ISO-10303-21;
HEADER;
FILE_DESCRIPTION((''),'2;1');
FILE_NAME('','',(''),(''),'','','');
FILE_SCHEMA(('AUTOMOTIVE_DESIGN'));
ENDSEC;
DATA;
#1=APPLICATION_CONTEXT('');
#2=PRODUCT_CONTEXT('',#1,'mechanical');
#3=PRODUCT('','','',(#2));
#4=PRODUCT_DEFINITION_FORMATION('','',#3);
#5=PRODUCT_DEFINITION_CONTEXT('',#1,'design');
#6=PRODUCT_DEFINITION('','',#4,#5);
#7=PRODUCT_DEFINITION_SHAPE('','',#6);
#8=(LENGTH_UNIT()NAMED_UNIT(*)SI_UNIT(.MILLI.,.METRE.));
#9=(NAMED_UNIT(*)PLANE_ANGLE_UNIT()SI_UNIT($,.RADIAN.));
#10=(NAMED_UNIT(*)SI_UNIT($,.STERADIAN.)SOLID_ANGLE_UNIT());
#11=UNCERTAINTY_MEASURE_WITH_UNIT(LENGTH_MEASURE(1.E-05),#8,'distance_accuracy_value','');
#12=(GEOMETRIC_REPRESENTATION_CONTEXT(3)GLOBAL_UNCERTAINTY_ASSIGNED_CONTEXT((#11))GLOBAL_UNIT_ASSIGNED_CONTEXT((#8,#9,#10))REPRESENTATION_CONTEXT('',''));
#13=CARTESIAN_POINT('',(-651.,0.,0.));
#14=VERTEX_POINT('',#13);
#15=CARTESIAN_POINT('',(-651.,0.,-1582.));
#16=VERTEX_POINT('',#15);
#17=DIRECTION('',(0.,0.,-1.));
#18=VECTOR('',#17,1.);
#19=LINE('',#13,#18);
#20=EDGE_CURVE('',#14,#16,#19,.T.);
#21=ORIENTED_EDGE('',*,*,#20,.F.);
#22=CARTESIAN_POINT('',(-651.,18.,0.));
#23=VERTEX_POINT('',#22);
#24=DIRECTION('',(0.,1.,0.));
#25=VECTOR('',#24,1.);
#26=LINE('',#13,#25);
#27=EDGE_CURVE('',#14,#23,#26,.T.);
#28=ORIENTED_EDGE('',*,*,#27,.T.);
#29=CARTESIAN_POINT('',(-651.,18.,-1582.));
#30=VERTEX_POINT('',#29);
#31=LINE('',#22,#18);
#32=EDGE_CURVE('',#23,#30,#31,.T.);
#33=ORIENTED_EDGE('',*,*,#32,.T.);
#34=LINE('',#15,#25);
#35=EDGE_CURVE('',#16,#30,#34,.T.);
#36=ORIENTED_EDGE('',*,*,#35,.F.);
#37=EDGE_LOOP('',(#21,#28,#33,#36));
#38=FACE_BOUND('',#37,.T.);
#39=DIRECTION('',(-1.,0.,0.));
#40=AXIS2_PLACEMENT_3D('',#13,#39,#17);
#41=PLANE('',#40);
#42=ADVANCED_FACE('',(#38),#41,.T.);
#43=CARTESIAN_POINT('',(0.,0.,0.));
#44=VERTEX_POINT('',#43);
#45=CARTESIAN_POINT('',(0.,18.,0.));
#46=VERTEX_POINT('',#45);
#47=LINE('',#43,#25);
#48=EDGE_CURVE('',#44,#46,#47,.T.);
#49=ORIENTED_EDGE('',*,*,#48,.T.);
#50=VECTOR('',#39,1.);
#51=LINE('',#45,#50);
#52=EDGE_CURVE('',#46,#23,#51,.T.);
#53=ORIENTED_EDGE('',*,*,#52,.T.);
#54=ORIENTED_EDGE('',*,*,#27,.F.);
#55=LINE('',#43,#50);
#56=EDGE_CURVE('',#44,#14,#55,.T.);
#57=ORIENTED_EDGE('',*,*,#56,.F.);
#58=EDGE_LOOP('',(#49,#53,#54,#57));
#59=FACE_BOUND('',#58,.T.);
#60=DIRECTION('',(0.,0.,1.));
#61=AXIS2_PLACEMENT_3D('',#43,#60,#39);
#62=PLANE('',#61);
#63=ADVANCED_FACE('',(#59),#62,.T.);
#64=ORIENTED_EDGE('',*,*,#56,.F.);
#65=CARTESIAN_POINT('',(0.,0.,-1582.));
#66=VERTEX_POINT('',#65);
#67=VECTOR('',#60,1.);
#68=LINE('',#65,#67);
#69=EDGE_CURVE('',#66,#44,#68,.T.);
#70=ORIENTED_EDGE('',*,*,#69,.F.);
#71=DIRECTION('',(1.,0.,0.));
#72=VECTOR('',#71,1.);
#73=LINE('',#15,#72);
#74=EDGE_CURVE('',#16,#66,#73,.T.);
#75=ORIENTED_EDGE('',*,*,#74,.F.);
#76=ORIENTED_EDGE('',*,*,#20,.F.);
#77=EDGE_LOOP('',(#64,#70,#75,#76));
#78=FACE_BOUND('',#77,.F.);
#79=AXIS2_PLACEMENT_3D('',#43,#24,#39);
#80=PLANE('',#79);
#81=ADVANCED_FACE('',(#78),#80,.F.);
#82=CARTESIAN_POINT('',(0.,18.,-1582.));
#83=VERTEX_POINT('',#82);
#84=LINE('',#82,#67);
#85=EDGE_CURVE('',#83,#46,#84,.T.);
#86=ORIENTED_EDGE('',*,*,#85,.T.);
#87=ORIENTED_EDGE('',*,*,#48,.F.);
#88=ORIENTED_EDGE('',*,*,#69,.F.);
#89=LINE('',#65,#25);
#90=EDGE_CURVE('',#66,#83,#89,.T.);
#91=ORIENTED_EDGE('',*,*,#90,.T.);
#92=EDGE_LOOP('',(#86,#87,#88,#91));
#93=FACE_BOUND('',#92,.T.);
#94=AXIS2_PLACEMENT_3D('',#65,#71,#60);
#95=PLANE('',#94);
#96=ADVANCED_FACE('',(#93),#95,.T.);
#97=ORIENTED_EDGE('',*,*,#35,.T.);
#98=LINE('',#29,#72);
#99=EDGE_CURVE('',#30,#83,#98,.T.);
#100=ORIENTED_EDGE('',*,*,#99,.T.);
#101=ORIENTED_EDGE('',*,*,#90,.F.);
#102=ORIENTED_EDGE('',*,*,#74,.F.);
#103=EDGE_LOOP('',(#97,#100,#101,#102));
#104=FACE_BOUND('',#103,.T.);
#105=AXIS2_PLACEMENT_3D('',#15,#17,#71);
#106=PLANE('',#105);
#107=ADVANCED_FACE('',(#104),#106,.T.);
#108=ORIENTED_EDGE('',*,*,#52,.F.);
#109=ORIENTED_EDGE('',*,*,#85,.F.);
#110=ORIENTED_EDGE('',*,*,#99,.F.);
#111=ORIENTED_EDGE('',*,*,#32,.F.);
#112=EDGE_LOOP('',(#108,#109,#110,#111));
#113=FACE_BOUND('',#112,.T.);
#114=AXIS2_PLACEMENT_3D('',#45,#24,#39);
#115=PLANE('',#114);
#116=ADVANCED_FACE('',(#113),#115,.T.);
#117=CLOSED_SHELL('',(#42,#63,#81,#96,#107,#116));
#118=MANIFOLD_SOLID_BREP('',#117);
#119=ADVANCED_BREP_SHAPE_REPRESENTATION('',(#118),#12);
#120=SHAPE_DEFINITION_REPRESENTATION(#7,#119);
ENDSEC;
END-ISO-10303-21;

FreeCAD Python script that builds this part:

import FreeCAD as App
import Part
import Sketcher
from FreeCAD import Vector
Q = App.Units.Quantity

doc = App.newDocument("Part")
body = doc.addObject("PartDesign::Body", "Body")

sketch1 = body.newObject("Sketcher::SketchObject", "Sketch")
sketch1.AttachmentSupport = (doc.getObject("XZ_Plane"), [""])
sketch1.MapMode = "FlatFace"
sketch1.addGeometry([
    Part.LineSegment(Vector(-651, 0, 0), Vector(0, 0, 0)),
    Part.LineSegment(Vector(0, 0, 0), Vector(0, -1582, 0)),
    Part.LineSegment(Vector(0, -1582, 0), Vector(-651, -1582, 0)),
    Part.LineSegment(Vector(-651, -1582, 0), Vector(-651, 0, 0)),
], False)
sketch1.addConstraint([
    Sketcher.Constraint("Coincident", 0, 2, 1, 1),
    Sketcher.Constraint("Coincident", 1, 2, 2, 1),
    Sketcher.Constraint("Coincident", 2, 2, 3, 1),
    Sketcher.Constraint("Coincident", 3, 2, 0, 1),
    Sketcher.Constraint("Horizontal", 0),
    Sketcher.Constraint("Vertical", 1),
    Sketcher.Constraint("Horizontal", 2),
    Sketcher.Constraint("Vertical", 3),
    Sketcher.Constraint("Coincident", 0, 2, -1, 1),
    Sketcher.Constraint("DistanceX", 0, 1, 0, 2, Q("651 mm")),
    Sketcher.Constraint("DistanceY", 1, 2, 1, 1, Q("1582 mm")),
])
pad1 = body.newObject("PartDesign::Pad", "Pad")
pad1.Profile = sketch1
pad1.Length = 18
pad1.Reversed = True

doc.recompute()
